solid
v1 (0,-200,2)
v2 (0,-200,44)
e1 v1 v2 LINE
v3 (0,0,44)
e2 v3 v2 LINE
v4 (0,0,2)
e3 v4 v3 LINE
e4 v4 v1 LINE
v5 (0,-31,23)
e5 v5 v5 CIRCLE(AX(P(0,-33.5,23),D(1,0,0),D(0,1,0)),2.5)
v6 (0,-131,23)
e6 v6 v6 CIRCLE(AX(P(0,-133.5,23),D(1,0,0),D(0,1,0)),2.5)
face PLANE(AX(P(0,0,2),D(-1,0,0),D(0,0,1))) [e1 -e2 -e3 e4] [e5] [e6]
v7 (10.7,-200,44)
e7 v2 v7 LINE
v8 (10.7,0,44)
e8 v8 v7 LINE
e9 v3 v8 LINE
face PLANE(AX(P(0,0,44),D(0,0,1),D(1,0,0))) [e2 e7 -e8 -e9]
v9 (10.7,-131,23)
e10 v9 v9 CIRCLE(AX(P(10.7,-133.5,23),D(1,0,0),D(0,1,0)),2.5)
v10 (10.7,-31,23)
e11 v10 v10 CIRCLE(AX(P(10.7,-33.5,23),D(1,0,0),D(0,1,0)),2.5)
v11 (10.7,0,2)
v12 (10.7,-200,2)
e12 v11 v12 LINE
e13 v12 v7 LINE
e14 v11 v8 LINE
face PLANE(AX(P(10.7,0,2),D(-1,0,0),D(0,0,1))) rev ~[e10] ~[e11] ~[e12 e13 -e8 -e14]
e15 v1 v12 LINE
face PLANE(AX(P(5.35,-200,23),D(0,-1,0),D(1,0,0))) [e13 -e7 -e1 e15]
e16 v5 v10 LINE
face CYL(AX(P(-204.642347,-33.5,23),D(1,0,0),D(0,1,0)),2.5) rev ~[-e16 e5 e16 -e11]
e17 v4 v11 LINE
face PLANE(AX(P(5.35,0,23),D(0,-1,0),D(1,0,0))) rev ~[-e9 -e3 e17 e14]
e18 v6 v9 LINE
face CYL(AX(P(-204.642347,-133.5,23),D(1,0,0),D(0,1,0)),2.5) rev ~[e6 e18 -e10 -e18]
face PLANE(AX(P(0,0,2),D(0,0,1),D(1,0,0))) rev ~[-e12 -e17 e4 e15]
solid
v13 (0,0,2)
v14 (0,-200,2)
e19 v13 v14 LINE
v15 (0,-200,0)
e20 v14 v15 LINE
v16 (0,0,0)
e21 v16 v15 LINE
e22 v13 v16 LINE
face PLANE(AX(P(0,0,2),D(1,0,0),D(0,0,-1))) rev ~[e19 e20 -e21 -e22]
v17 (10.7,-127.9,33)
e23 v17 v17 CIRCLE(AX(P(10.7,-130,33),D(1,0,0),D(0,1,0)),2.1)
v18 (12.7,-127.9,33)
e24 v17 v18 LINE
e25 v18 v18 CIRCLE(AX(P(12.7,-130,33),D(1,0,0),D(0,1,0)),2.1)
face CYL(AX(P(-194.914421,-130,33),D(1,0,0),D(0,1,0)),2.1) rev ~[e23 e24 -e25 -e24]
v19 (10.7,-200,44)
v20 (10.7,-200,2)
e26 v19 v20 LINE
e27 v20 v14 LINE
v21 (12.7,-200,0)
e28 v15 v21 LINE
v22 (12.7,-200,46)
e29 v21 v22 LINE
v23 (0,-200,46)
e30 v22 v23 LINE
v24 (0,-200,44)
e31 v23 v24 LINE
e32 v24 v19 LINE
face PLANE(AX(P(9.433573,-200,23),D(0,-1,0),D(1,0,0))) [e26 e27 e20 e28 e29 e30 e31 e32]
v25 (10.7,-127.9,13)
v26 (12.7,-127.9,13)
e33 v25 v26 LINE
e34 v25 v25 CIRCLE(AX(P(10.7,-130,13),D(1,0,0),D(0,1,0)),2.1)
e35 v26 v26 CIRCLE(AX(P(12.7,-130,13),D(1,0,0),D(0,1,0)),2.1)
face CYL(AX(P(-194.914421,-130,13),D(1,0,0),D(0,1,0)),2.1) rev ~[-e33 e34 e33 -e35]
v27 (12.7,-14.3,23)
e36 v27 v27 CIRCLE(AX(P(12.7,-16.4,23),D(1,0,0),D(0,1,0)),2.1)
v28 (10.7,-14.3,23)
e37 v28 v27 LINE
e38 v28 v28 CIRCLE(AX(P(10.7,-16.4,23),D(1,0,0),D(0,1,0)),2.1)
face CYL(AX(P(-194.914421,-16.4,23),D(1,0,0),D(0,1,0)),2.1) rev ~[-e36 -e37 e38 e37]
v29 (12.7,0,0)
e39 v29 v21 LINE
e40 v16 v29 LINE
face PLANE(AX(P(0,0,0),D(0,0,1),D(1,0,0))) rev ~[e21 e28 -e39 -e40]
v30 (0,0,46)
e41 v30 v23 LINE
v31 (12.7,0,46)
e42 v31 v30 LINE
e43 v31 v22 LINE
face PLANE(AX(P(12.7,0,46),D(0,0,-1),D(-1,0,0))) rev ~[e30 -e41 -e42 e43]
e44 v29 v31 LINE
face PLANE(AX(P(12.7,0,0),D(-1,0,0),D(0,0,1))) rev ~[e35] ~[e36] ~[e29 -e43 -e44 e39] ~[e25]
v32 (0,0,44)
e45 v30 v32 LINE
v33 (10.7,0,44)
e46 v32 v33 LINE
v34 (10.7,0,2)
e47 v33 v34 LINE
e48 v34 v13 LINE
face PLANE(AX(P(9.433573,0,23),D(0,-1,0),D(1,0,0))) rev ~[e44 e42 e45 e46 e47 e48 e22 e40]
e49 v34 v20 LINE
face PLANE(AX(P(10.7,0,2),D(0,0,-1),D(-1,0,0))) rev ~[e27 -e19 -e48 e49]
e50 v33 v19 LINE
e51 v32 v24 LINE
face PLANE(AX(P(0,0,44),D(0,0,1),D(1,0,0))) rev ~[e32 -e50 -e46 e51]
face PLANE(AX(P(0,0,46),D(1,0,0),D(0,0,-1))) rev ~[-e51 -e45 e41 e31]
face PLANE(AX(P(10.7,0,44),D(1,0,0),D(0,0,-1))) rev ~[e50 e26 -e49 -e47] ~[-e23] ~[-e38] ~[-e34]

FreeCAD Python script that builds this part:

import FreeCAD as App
import Part
import Sketcher

V = App.Vector
Q = App.Units.Quantity

doc = App.newDocument("Part")
body = doc.addObject("PartDesign::Body", "Body")

# Sketch on XZ plane
sketch1 = body.newObject("Sketcher::SketchObject", "Sketch")
sketch1.AttachmentSupport = (doc.getObject("XZ_Plane"), [""])
sketch1.MapMode = "FlatFace"
sketch1.addGeometry(Part.LineSegment(V(0, 2, 0), V(0, 0, 0)), False)
sketch1.addGeometry(Part.LineSegment(V(0, 0, 0), V(12.7, 0, 0)), False)
sketch1.addGeometry(Part.LineSegment(V(12.7, 0, 0), V(12.7, 46, 0)), False)
sketch1.addGeometry(Part.LineSegment(V(12.7, 46, 0), V(0, 46, 0)), False)
sketch1.addGeometry(Part.LineSegment(V(0, 46, 0), V(0, 44, 0)), False)
sketch1.addGeometry(Part.LineSegment(V(0, 44, 0), V(10.7, 44, 0)), False)
sketch1.addGeometry(Part.LineSegment(V(10.7, 44, 0), V(10.7, 2, 0)), False)
sketch1.addGeometry(Part.LineSegment(V(10.7, 2, 0), V(0, 2, 0)), False)
sketch1.addConstraint(Sketcher.Constraint("Coincident", 0, 2, 1, 1))
sketch1.addConstraint(Sketcher.Constraint("Coincident", 1, 2, 2, 1))
sketch1.addConstraint(Sketcher.Constraint("Coincident", 2, 2, 3, 1))
sketch1.addConstraint(Sketcher.Constraint("Coincident", 3, 2, 4, 1))
sketch1.addConstraint(Sketcher.Constraint("Coincident", 4, 2, 5, 1))
sketch1.addConstraint(Sketcher.Constraint("Coincident", 5, 2, 6, 1))
sketch1.addConstraint(Sketcher.Constraint("Coincident", 6, 2, 7, 1))
sketch1.addConstraint(Sketcher.Constraint("Coincident", 7, 2, 0, 1))
sketch1.addConstraint(Sketcher.Constraint("Vertical", 0))
sketch1.addConstraint(Sketcher.Constraint("Horizontal", 1))
sketch1.addConstraint(Sketcher.Constraint("Vertical", 2))
sketch1.addConstraint(Sketcher.Constraint("Horizontal", 3))
sketch1.addConstraint(Sketcher.Constraint("Vertical", 4))
sketch1.addConstraint(Sketcher.Constraint("Horizontal", 5))
sketch1.addConstraint(Sketcher.Constraint("Vertical", 6))
sketch1.addConstraint(Sketcher.Constraint("Horizontal", 7))
sketch1.addConstraint(Sketcher.Constraint("Coincident", 0, 2, -1, 1))
sketch1.addConstraint(Sketcher.Constraint("PointOnObject", 3, 2, -2))
sketch1.addConstraint(Sketcher.Constraint("Equal", 0, 4))
sketch1.addConstraint(Sketcher.Constraint("DistanceY", 0, 2, 0, 1, Q("2 mm")))
sketch1.addConstraint(Sketcher.Constraint("DistanceY", 2, 1, 2, 2, Q("46 mm")))
sketch1.addConstraint(Sketcher.Constraint("DistanceX", 1, 1, 1, 2, Q("12.7 mm")))
sketch1.addConstraint(Sketcher.Constraint("DistanceX", 5, 1, 5, 2, Q("10.7 mm")))
pad1 = body.newObject("PartDesign::Pad", "Pad")
pad1.Profile = sketch1
pad1.Length = 200

# Sketch on YZ plane
sketch2 = body.newObject("Sketcher::SketchObject", "Sketch001")
sketch2.AttachmentSupport = (doc.getObject("YZ_Plane"), [""])
sketch2.MapMode = "FlatFace"
sketch2.AttachmentOffset = App.Placement(V(0, 0, 10.7), App.Rotation())
sketch2.addGeometry(Part.Circle(V(-130, 13, 0), V(0, 0, 1), 2.1), False)
sketch2.addGeometry(Part.Circle(V(-130, 33, 0), V(0, 0, 1), 2.1), False)
sketch2.addGeometry(Part.Circle(V(-16.4, 23, 0), V(0, 0, 1), 2.1), False)
sketch2.addConstraint(Sketcher.Constraint("Equal", 0, 1))
sketch2.addConstraint(Sketcher.Constraint("Equal", 1, 2))
sketch2.addConstraint(Sketcher.Constraint("Vertical", 0, 3, 1, 3))
sketch2.addConstraint(Sketcher.Constraint("Diameter", 0, Q("4.2 mm")))
sketch2.addConstraint(Sketcher.Constraint("DistanceX", 0, 3, -1, 1, Q("130 mm")))
sketch2.addConstraint(Sketcher.Constraint("DistanceY", -1, 1, 0, 3, Q("13 mm")))
sketch2.addConstraint(Sketcher.Constraint("DistanceY", -1, 1, 1, 3, Q("33 mm")))
sketch2.addConstraint(Sketcher.Constraint("DistanceY", -1, 1, 2, 3, Q("23 mm")))
sketch2.addConstraint(Sketcher.Constraint("DistanceX", 2, 3, -1, 1, Q("16.4 mm")))
doc.recompute()
hole = body.newObject("PartDesign::Hole", "Hole")
hole.Profile = sketch2
hole.ThreadType = "None"
hole.Diameter = 4.2
hole.DepthType = "ThroughAll"
hole.Reversed = True
body2 = doc.addObject("PartDesign::Body", "Body001")

# Sketch on XZ plane
sketch3 = body2.newObject("Sketcher::SketchObject", "Sketch002")
sketch3.AttachmentSupport = (doc.getObject("XZ_Plane001"), [""])
sketch3.MapMode = "FlatFace"
sketch3.addGeometry(Part.LineSegment(V(0, 44, 0), V(0, 2, 0)), False)
sketch3.addGeometry(Part.LineSegment(V(0, 2, 0), V(11, 2, 0)), False)
sketch3.addGeometry(Part.LineSegment(V(11, 2, 0), V(11, 44, 0)), False)
sketch3.addGeometry(Part.LineSegment(V(11, 44, 0), V(0, 44, 0)), False)
sketch3.addConstraint(Sketcher.Constraint("Coincident", 0, 2, 1, 1))
sketch3.addConstraint(Sketcher.Constraint("Coincident", 1, 2, 2, 1))
sketch3.addConstraint(Sketcher.Constraint("Coincident", 2, 2, 3, 1))
sketch3.addConstraint(Sketcher.Constraint("Coincident", 3, 2, 0, 1))
sketch3.addConstraint(Sketcher.Constraint("Vertical", 0))
sketch3.addConstraint(Sketcher.Constraint("Horizontal", 1))
sketch3.addConstraint(Sketcher.Constraint("Vertical", 2))
sketch3.addConstraint(Sketcher.Constraint("Horizontal", 3))
sketch3.addConstraint(Sketcher.Constraint("PointOnObject", 0, 2, -2))
sketch3.addConstraint(Sketcher.Constraint("DistanceY", 0, 2, 0, 1, Q("42 mm")))
sketch3.addConstraint(Sketcher.Constraint("DistanceX", 1, 1, 1, 2, Q("10.7 mm")))
sketch3.addConstraint(Sketcher.Constraint("DistanceY", -1, 1, 0, 2, Q("2 mm")))
pad2 = body2.newObject("PartDesign::Pad", "Pad001")
pad2.Profile = sketch3
pad2.Length = 200

# Sketch on YZ plane
sketch4 = body2.newObject("Sketcher::SketchObject", "Sketch003")
sketch4.AttachmentSupport = (doc.getObject("YZ_Plane001"), [""])
sketch4.MapMode = "FlatFace"
sketch4.addGeometry(Part.Circle(V(-133.5, 23, 0), V(0, 0, 1), 2.5), False)
sketch4.addGeometry(Part.Circle(V(-33.5, 23, 0), V(0, 0, 1), 2.5), False)
sketch4.addConstraint(Sketcher.Constraint("Equal", 0, 1))
sketch4.addConstraint(Sketcher.Constraint("Horizontal", 0, 3, 1, 3))
sketch4.addConstraint(Sketcher.Constraint("Diameter", 0, Q("5 mm")))
sketch4.addConstraint(Sketcher.Constraint("DistanceY", -1, 1, 0, 3, Q("23 mm")))
sketch4.addConstraint(Sketcher.Constraint("DistanceX", 0, 3, 1, 3, Q("100 mm")))
sketch4.addConstraint(Sketcher.Constraint("DistanceX", 0, 3, -1, 1, Q("133.5 mm")))
doc.recompute()
hole2 = body2.newObject("PartDesign::Hole", "Hole001")
hole2.Profile = sketch4
hole2.ThreadType = "None"
hole2.Diameter = 5
hole2.DepthType = "ThroughAll"
hole2.Reversed = True

doc.recompute()
